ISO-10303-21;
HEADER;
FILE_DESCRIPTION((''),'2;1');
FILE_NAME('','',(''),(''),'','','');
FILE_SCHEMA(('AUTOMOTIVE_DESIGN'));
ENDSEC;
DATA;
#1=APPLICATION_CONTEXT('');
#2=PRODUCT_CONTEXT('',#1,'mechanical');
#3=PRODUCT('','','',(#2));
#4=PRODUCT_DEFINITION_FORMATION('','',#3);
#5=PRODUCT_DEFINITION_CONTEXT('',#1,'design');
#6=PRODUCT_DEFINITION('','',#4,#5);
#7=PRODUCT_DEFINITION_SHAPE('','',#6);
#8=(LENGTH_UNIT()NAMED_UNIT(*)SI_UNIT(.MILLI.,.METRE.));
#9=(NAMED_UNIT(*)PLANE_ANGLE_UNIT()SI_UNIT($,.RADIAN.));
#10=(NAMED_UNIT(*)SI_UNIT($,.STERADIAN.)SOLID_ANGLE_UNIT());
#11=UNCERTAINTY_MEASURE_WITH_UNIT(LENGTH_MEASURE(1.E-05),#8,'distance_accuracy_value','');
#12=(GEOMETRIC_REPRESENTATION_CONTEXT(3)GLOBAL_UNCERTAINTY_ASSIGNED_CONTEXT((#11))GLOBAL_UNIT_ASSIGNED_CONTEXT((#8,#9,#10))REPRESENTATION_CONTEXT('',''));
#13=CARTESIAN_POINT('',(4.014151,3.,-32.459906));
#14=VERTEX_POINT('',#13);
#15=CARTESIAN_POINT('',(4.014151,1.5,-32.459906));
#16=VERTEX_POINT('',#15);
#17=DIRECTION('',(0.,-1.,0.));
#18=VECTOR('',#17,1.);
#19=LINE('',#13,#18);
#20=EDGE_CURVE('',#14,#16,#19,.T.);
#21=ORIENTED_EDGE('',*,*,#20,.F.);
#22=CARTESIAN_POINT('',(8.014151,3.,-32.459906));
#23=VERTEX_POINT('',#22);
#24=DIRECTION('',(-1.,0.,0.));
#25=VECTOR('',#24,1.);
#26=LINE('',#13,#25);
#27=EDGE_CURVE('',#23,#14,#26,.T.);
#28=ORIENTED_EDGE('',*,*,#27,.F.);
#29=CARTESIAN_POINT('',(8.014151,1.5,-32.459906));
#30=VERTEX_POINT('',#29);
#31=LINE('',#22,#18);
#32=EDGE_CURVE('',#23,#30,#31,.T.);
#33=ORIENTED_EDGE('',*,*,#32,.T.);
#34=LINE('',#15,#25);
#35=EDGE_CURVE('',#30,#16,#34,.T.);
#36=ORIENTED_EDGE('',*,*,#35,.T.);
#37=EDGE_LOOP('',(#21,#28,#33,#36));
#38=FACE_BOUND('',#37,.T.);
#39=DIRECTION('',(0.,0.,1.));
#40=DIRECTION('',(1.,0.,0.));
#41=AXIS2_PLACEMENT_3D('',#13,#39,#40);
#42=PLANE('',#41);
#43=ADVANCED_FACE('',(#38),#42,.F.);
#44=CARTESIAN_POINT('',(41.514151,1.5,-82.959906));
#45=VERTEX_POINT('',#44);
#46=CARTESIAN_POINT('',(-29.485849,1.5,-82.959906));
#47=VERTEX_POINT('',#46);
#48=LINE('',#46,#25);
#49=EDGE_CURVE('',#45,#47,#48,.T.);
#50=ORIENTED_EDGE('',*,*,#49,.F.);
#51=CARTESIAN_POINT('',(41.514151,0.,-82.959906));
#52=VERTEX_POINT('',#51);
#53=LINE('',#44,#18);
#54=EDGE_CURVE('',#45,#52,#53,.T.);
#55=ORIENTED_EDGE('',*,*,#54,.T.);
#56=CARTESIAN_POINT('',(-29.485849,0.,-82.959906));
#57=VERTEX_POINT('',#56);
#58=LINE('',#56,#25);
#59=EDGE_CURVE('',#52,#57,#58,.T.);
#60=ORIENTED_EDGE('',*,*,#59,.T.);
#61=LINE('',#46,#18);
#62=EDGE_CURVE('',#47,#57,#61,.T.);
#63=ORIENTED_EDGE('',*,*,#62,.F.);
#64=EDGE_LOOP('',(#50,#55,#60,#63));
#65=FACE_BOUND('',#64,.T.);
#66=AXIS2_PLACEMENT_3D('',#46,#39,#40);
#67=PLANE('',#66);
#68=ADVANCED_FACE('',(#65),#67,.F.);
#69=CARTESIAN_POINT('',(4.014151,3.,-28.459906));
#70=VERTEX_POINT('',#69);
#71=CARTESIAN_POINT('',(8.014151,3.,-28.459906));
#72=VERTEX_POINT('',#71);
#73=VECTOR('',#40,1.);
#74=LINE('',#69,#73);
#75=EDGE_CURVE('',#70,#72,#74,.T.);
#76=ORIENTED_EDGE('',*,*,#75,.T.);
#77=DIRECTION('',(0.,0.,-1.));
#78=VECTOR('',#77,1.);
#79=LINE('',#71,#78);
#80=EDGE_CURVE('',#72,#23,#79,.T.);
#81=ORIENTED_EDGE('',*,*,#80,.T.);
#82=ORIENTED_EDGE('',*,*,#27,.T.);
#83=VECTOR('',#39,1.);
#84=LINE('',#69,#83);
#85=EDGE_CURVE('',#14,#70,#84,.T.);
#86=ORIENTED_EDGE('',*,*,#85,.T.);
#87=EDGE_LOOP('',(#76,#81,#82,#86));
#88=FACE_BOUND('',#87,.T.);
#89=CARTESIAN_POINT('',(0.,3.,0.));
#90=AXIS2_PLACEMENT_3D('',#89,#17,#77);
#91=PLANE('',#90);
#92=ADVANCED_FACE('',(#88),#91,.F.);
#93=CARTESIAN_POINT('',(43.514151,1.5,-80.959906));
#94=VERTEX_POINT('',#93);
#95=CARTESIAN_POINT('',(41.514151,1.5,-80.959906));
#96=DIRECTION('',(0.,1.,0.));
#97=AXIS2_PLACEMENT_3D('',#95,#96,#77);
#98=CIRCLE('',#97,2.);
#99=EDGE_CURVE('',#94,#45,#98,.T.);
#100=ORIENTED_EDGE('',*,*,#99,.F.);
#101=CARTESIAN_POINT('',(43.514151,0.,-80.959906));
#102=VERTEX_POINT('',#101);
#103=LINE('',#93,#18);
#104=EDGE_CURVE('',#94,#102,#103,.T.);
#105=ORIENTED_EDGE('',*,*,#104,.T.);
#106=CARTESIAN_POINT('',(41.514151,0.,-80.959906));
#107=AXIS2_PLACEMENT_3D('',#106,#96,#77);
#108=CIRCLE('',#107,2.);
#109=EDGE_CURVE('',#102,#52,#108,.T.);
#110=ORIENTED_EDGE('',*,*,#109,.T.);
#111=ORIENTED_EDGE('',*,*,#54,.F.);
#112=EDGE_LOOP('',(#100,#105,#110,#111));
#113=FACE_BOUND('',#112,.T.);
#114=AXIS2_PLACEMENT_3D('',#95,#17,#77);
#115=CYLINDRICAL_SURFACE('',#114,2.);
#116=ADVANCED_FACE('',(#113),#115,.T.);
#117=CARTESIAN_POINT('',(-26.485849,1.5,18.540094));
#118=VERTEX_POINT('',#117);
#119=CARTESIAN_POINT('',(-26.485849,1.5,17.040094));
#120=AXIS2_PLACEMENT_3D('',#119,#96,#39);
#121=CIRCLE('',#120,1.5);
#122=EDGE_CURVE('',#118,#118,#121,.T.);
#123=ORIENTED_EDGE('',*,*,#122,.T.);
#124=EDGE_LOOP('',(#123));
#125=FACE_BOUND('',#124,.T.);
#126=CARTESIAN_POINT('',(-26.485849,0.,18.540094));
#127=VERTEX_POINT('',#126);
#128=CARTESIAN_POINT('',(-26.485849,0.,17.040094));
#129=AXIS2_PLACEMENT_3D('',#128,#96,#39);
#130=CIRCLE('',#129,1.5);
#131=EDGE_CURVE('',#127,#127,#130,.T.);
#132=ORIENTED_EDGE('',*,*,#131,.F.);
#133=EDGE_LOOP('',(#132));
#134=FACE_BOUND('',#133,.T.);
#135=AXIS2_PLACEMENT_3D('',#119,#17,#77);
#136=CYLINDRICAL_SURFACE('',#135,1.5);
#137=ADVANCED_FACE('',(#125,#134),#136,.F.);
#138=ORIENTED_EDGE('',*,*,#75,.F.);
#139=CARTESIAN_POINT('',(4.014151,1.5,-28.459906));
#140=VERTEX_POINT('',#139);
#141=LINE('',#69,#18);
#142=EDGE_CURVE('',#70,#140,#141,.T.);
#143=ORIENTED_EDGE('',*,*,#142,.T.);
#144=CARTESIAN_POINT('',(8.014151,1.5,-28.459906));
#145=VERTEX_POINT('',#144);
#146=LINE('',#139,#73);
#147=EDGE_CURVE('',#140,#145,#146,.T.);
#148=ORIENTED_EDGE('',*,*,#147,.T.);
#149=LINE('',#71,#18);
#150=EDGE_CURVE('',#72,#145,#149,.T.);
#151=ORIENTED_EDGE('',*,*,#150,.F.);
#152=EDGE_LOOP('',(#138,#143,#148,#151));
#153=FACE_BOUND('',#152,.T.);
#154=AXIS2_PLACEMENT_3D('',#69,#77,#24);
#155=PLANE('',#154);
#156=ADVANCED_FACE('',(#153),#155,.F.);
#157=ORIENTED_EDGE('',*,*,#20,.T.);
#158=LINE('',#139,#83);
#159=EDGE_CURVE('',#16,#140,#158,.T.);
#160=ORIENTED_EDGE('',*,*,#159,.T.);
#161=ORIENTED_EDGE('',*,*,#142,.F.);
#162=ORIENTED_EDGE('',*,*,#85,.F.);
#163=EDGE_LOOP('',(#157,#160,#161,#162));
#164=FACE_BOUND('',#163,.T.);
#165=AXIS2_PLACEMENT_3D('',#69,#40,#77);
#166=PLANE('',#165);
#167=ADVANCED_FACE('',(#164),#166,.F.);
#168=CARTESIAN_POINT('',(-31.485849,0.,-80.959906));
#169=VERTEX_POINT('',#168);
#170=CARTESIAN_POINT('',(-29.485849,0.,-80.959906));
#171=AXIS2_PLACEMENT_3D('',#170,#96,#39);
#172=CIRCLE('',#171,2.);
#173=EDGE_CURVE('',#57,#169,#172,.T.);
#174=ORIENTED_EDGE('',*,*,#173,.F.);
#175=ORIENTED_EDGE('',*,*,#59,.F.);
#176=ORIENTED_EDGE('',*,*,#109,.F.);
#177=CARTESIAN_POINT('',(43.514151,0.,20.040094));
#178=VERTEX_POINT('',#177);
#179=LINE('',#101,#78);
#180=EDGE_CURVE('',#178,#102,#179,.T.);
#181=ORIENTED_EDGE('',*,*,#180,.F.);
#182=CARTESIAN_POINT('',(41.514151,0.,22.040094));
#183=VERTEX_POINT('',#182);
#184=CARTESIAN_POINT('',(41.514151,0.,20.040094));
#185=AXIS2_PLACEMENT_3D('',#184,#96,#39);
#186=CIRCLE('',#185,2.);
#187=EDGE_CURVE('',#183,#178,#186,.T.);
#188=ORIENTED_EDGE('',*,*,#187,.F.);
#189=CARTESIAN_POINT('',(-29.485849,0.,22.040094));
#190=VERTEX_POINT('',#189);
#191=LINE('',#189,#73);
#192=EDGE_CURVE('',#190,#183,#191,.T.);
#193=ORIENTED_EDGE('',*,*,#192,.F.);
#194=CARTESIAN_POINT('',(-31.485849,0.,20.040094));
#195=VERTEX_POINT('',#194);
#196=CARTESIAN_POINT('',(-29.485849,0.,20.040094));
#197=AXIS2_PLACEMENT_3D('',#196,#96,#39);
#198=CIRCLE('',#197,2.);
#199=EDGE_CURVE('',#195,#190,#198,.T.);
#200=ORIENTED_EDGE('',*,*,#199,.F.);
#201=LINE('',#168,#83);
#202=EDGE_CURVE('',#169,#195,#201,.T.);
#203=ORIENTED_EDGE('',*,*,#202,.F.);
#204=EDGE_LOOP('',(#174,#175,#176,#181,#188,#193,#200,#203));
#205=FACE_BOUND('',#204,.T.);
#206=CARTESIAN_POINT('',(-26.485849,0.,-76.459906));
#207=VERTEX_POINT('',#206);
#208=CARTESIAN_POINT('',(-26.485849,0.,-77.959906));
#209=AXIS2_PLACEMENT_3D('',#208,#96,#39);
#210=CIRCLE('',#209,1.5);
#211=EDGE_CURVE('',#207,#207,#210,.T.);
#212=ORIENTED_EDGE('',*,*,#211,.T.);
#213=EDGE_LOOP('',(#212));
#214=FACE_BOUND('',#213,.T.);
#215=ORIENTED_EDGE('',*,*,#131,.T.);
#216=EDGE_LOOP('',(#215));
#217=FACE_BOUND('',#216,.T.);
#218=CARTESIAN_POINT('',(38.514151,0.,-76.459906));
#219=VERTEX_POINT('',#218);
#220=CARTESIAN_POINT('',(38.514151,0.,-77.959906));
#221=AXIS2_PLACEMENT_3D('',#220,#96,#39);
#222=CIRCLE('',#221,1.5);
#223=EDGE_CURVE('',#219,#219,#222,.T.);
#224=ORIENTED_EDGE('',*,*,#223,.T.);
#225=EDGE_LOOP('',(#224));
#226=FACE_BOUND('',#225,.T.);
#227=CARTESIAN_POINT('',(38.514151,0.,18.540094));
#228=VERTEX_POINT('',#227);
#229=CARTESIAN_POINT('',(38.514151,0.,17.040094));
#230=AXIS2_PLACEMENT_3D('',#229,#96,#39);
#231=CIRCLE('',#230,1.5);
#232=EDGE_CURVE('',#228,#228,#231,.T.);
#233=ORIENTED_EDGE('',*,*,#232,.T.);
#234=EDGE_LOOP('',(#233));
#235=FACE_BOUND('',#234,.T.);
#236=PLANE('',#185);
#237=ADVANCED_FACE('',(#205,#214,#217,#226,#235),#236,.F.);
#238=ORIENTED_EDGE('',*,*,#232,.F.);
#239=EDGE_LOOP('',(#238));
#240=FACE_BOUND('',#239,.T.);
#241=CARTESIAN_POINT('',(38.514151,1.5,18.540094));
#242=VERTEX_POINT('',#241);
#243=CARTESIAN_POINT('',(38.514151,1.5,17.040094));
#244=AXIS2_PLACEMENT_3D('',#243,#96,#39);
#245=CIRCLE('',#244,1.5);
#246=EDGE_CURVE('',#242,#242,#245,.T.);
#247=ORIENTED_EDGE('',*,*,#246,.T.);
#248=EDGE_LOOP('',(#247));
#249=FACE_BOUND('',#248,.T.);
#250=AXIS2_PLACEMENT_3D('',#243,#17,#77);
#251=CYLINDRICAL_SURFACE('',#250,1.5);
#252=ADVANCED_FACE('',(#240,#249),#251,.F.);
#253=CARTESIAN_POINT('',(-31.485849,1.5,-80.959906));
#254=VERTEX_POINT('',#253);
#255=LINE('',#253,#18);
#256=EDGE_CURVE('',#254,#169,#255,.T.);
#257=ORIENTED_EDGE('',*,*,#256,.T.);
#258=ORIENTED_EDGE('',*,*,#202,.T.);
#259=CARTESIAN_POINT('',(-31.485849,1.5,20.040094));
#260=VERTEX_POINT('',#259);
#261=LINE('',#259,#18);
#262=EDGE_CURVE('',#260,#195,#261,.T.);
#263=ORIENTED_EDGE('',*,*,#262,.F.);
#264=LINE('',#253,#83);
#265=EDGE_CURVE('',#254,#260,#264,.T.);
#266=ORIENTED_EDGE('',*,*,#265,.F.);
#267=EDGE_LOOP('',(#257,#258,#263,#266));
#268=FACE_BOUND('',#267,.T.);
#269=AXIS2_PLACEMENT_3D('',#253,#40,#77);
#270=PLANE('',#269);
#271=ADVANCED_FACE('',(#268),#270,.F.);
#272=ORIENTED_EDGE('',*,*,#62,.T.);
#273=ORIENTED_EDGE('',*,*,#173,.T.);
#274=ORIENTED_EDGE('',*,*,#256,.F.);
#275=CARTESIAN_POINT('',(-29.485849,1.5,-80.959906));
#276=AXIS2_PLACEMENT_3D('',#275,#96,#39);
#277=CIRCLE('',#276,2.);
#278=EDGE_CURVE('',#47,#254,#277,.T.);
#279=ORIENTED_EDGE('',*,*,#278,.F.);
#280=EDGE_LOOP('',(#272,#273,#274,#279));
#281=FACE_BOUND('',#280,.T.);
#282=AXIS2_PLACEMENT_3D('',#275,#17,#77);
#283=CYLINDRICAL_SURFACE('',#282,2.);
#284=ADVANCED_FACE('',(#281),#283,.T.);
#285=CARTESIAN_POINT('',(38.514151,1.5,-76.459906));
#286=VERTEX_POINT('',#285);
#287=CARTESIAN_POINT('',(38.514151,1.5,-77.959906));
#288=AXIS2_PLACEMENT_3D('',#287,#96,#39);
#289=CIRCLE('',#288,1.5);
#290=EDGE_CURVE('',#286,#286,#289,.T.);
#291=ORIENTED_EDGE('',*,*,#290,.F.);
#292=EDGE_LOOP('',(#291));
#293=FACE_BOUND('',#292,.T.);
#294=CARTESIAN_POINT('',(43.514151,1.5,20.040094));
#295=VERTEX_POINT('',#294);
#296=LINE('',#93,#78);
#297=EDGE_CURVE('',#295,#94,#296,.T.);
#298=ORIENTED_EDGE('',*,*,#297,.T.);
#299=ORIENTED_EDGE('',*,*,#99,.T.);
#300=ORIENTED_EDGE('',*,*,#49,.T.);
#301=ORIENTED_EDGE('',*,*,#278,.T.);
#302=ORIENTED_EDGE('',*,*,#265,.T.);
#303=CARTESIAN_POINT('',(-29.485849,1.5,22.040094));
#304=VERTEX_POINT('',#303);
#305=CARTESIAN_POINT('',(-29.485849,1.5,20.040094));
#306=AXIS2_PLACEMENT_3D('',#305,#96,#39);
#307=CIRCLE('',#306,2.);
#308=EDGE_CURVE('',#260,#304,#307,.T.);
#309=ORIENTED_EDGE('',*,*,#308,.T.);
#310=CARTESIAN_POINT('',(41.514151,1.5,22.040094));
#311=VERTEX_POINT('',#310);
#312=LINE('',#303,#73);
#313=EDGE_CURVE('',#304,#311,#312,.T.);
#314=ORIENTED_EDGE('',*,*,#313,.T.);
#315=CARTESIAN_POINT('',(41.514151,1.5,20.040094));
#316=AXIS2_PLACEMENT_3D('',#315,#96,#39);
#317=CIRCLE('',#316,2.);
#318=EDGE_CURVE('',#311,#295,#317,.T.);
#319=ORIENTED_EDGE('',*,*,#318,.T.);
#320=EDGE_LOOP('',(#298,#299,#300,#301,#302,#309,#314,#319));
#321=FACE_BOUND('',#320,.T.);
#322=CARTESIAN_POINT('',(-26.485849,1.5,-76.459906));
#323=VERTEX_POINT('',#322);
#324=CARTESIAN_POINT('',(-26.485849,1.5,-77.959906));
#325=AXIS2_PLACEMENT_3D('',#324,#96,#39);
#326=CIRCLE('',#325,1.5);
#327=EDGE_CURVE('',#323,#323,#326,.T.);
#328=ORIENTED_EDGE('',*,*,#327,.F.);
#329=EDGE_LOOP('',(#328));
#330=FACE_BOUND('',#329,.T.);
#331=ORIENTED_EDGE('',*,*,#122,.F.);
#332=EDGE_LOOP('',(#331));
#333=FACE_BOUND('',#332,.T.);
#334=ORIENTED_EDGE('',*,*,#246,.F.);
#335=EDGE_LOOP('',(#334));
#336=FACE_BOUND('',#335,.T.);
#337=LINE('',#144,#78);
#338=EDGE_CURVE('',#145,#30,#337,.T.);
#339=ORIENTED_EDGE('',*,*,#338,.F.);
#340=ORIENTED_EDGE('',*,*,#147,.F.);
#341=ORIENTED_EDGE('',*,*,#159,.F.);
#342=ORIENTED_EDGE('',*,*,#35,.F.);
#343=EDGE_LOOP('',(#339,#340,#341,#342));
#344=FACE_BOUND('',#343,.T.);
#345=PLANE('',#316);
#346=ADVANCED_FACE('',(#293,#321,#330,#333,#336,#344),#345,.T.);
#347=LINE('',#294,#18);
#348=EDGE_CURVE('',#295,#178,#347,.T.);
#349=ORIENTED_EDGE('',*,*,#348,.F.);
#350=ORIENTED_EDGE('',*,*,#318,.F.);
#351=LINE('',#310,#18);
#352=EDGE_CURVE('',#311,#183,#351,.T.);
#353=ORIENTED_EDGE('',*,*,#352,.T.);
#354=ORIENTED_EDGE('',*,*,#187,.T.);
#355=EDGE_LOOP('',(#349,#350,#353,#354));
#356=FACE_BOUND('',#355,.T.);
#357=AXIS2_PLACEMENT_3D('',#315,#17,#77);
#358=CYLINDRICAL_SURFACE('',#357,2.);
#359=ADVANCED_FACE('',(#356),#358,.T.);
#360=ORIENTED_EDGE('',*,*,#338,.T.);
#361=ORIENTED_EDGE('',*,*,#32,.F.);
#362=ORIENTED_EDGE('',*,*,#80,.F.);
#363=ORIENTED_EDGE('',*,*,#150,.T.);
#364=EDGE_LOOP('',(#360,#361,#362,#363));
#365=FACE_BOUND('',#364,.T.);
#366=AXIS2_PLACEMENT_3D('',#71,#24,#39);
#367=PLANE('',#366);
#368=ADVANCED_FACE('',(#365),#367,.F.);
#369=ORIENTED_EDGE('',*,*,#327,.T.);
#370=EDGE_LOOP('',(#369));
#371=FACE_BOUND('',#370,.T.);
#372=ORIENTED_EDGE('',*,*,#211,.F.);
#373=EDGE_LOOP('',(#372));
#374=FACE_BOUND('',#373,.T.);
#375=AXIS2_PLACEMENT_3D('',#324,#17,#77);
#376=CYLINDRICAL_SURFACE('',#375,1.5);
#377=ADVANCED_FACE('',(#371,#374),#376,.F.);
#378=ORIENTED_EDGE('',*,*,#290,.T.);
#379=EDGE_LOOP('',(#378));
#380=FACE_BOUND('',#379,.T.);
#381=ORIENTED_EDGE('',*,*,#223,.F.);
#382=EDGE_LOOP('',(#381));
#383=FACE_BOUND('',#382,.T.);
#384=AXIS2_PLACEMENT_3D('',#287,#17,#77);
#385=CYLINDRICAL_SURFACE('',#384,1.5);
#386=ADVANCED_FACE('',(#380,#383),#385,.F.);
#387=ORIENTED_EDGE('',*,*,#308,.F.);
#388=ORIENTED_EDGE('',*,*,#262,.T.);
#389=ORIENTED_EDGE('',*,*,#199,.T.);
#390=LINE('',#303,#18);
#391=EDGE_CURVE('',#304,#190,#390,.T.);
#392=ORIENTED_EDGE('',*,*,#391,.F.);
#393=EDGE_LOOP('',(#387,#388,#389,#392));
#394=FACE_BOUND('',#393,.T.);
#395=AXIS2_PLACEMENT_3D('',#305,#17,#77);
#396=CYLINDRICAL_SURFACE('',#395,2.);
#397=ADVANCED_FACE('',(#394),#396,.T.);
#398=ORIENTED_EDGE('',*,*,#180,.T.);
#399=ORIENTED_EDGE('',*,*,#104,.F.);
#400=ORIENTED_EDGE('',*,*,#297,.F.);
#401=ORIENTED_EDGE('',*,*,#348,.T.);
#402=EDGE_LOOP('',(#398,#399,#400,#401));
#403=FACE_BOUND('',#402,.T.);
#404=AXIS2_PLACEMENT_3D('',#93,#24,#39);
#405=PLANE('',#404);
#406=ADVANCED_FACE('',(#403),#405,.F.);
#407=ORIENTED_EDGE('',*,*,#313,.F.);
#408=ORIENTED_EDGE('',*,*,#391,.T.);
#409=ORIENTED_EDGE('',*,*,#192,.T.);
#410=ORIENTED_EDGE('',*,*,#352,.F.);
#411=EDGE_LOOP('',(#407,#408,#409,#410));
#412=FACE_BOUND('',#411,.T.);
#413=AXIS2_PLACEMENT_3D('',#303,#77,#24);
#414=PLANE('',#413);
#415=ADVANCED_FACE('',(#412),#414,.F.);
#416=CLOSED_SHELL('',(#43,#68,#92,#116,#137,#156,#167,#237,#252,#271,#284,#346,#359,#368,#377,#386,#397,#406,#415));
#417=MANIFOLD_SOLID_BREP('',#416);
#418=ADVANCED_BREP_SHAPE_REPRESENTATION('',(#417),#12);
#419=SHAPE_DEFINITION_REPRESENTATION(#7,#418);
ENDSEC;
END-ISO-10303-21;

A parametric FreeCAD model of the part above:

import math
import FreeCAD as App
import Part
import Sketcher

V = App.Vector

doc = App.newDocument("Part")
body = doc.addObject("PartDesign::Body", "Body")

# Sketch on XZ plane
sketch1 = body.newObject("Sketcher::SketchObject", "Sketch")
sketch1.AttachmentSupport = (doc.getObject("XZ_Plane"), [""])
sketch1.MapMode = "FlatFace"
sketch1.addGeometry([
    Part.LineSegment(V(41.5, -83, 0), V(-29.5, -83, 0)),  # 0
    Part.ArcOfCircle(Part.Circle(V(-29.5, -81, 0), V(0, 0, 1), 2), math.radians(180), math.radians(270)),  # 1
    Part.LineSegment(V(-31.5, -81, 0), V(-31.5, 20, 0)),  # 2
    Part.ArcOfCircle(Part.Circle(V(-29.5, 20, 0), V(0, 0, 1), 2), math.radians(90), math.radians(180)),  # 3
    Part.LineSegment(V(-29.5, 22, 0), V(41.5, 22, 0)),  # 4
    Part.ArcOfCircle(Part.Circle(V(41.5, 20, 0), V(0, 0, 1), 2), math.radians(0), math.radians(90)),  # 5
    Part.LineSegment(V(43.5, 20, 0), V(43.5, -81, 0)),  # 6
    Part.ArcOfCircle(Part.Circle(V(41.5, -81, 0), V(0, 0, 1), 2), math.radians(-90), math.radians(0)),  # 7
    Part.Circle(V(38.5, 17, 0), V(0, 0, 1), 1.5),  # 8
    Part.Circle(V(-26.5, 17, 0), V(0, 0, 1), 1.5),  # 9
    Part.Circle(V(38.5, -78, 0), V(0, 0, 1), 1.5),  # 10
    Part.Circle(V(-26.5, -78, 0), V(0, 0, 1), 1.5),  # 11
], False)
sketch1.addConstraint([
    Sketcher.Constraint("Tangent", 0, 2, 1, 2),
    Sketcher.Constraint("Tangent", 1, 1, 2, 1),
    Sketcher.Constraint("Tangent", 2, 2, 3, 2),
    Sketcher.Constraint("Tangent", 3, 1, 4, 1),
    Sketcher.Constraint("Tangent", 4, 2, 5, 2),
    Sketcher.Constraint("Tangent", 5, 1, 6, 1),
    Sketcher.Constraint("Tangent", 6, 2, 7, 2),
    Sketcher.Constraint("Tangent", 7, 1, 0, 1),
    Sketcher.Constraint("Horizontal", 0),
    Sketcher.Constraint("Vertical", 2),
    Sketcher.Constraint("Horizontal", 4),
    Sketcher.Constraint("Vertical", 6),
    Sketcher.Constraint("Equal", 1, 3),
    Sketcher.Constraint("Equal", 3, 5),
    Sketcher.Constraint("Equal", 5, 7),
    Sketcher.Constraint("Equal", 8, 9),
    Sketcher.Constraint("Equal", 9, 10),
    Sketcher.Constraint("Equal", 10, 11),
    Sketcher.Constraint("Horizontal", 8, 3, 9, 3),
    Sketcher.Constraint("Horizontal", 10, 3, 11, 3),
    Sketcher.Constraint("Vertical", 8, 3, 10, 3),
    Sketcher.Constraint("Vertical", 9, 3, 11, 3),
    Sketcher.Constraint("Diameter", 8, 3.0),
    Sketcher.Constraint("Radius", 1, 2.0),
    Sketcher.Constraint("DistanceX", 0, 2, 0, 1, 71.0),
    Sketcher.Constraint("DistanceY", 2, 1, 2, 2, 101.0),
    Sketcher.Constraint("DistanceX", 8, 3, 5, 3, 3.0),
    Sketcher.Constraint("DistanceY", 8, 3, 5, 3, 3.0),
    Sketcher.Constraint("DistanceX", 3, 3, 9, 3, 3.0),
    Sketcher.Constraint("DistanceY", 7, 3, 10, 3, 3.0),
    Sketcher.Constraint("DistanceX", 1, 3, -1, 1, 29.485849),
    Sketcher.Constraint("DistanceY", 1, 3, -1, 1, 80.959906),
])
pad1 = body.newObject("PartDesign::Pad", "Pad")
pad1.Profile = sketch1
pad1.Length = 1.5
pad1.Reversed = True

# Sketch on XZ plane
sketch2 = body.newObject("Sketcher::SketchObject", "Sketch001")
sketch2.AttachmentSupport = (doc.getObject("XZ_Plane"), [""])
sketch2.MapMode = "FlatFace"
sketch2.AttachmentOffset = App.Placement(V(0, 0, -1.5), App.Rotation())
sketch2.addGeometry([
    Part.LineSegment(V(4, -32.5, 0), V(4, -28.5, 0)),
    Part.LineSegment(V(4, -28.5, 0), V(8, -28.5, 0)),
    Part.LineSegment(V(8, -28.5, 0), V(8, -32.5, 0)),
    Part.LineSegment(V(8, -32.5, 0), V(4, -32.5, 0)),
], False)
sketch2.addConstraint([
    Sketcher.Constraint("Coincident", 0, 2, 1, 1),
    Sketcher.Constraint("Coincident", 1, 2, 2, 1),
    Sketcher.Constraint("Coincident", 2, 2, 3, 1),
    Sketcher.Constraint("Coincident", 3, 2, 0, 1),
    Sketcher.Constraint("Vertical", 0),
    Sketcher.Constraint("Horizontal", 1),
    Sketcher.Constraint("Vertical", 2),
    Sketcher.Constraint("Horizontal", 3),
    Sketcher.Constraint("Equal", 3, 0),
    Sketcher.Constraint("DistanceX", 1, 1, 1, 2, 4.0),
    Sketcher.Constraint("DistanceX", -1, 1, 0, 2, 4.014151),
    Sketcher.Constraint("DistanceY", 0, 2, -1, 1, 28.459906),
])
pad2 = body.newObject("PartDesign::Pad", "Pad001")
pad2.Profile = sketch2
pad2.Length = 1.5
pad2.Reversed = True

doc.recompute()
